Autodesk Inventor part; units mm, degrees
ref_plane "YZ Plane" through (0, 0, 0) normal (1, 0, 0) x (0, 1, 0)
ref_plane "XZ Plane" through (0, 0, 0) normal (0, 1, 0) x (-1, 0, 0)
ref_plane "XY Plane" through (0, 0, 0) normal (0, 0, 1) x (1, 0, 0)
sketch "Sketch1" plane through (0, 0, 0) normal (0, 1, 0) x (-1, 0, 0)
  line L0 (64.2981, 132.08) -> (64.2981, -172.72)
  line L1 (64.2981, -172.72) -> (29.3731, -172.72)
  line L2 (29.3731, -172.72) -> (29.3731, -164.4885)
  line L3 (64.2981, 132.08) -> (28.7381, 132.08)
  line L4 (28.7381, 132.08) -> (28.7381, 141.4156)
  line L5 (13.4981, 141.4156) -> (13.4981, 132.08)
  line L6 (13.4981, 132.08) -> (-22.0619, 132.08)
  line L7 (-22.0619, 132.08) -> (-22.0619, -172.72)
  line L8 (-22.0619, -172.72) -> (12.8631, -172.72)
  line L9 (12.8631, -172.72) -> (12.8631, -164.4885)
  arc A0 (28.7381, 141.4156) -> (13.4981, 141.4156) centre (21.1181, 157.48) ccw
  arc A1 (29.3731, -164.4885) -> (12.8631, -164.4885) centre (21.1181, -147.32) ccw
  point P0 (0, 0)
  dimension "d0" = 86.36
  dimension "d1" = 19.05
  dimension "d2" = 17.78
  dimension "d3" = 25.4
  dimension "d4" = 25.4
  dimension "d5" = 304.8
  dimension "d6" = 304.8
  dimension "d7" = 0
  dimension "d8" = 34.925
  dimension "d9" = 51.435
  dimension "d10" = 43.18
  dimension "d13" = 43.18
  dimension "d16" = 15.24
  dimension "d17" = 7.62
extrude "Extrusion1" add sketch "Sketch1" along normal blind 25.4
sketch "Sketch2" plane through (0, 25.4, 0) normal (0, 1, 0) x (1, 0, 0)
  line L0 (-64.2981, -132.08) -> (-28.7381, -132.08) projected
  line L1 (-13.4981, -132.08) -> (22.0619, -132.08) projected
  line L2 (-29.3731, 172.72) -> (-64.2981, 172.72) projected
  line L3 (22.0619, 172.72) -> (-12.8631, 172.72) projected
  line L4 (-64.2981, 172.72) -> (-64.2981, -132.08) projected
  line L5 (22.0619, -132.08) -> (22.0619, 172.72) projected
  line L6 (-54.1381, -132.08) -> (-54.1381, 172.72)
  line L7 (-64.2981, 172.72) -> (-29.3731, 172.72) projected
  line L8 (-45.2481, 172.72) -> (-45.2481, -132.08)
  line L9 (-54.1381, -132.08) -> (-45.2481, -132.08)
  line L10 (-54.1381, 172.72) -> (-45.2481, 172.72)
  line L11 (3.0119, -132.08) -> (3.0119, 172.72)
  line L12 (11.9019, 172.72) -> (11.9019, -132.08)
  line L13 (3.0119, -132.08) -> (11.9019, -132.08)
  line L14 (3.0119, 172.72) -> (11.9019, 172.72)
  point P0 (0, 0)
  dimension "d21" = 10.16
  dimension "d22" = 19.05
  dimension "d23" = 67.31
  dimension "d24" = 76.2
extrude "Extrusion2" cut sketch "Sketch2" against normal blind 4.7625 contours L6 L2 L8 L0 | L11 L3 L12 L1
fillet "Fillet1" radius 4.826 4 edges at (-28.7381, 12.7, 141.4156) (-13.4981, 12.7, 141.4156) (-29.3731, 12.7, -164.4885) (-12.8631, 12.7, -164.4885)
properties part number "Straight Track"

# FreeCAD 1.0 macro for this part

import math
import FreeCAD as App
import Part
import Sketcher
Q = App.Units.Quantity


def edges_at(feature, points):
    """Names of the edges that pass closest to the given points."""
    edges = feature.Shape.Edges
    near = lambda p: min(range(len(edges)), key=lambda i: edges[i].distToShape(Part.Vertex(*p))[0])
    return sorted({f"Edge{near(p) + 1}" for p in points})


def add_polygon(sketch, points):
    """Adds a closed chain of lines whose ends are joined by coincident constraints."""
    first, n = sketch.GeometryCount, len(points)
    for a, b in zip(points, points[1:] + points[:1]):
        sketch.addGeometry(Part.LineSegment(App.Vector(*a, 0), App.Vector(*b, 0)), False)
    for i in range(n):
        sketch.addConstraint(Sketcher.Constraint("Coincident", first + i, 2, first + (i + 1) % n, 1))

doc = App.newDocument("Part")
body = doc.addObject("PartDesign::Body", "Body")

# Sketch on XZ plane
sketch1 = doc.addObject("Sketcher::SketchObject", "Sketch")
body.addObject(sketch1)
sketch1.AttachmentSupport = (doc.XZ_Plane, [""])
sketch1.MapMode = "FlatFace"
sketch1.addGeometry(Part.LineSegment(App.Vector(-64.2981, -172.72, 0), App.Vector(-64.2981, 132.08, 0)), False)
sketch1.addGeometry(Part.LineSegment(App.Vector(-64.2981, 132.08, 0), App.Vector(-28.7381, 132.08, 0)), False)
sketch1.addGeometry(Part.LineSegment(App.Vector(-28.7381, 132.08, 0), App.Vector(-28.7381, 141.4156, 0)), False)
sketch1.addGeometry(Part.ArcOfCircle(Part.Circle(App.Vector(-21.1181, 157.48, 0), App.Vector(0, 0, 1), 17.780027), math.radians(-64.623107), math.radians(244.623107)), False)
sketch1.addGeometry(Part.LineSegment(App.Vector(-13.4981, 141.4156, 0), App.Vector(-13.4981, 132.08, 0)), False)
sketch1.addGeometry(Part.LineSegment(App.Vector(-13.4981, 132.08, 0), App.Vector(22.0619, 132.08, 0)), False)
sketch1.addGeometry(Part.LineSegment(App.Vector(22.0619, 132.08, 0), App.Vector(22.0619, -172.72, 0)), False)
sketch1.addGeometry(Part.LineSegment(App.Vector(22.0619, -172.72, 0), App.Vector(-12.8631, -172.72, 0)), False)
sketch1.addGeometry(Part.LineSegment(App.Vector(-12.8631, -172.72, 0), App.Vector(-12.8631, -164.4885, 0)), False)
sketch1.addGeometry(Part.ArcOfCircle(Part.Circle(App.Vector(-21.1181, -147.32, 0), App.Vector(0, 0, 1), 19.049998), math.radians(-64.320708), math.radians(244.320708)), False)
sketch1.addGeometry(Part.LineSegment(App.Vector(-29.3731, -164.4885, 0), App.Vector(-29.3731, -172.72, 0)), False)
sketch1.addGeometry(Part.LineSegment(App.Vector(-29.3731, -172.72, 0), App.Vector(-64.2981, -172.72, 0)), False)
sketch1.addConstraint(Sketcher.Constraint("Coincident", 0, 2, 1, 1))
sketch1.addConstraint(Sketcher.Constraint("Coincident", 1, 2, 2, 1))
sketch1.addConstraint(Sketcher.Constraint("Coincident", 2, 2, 3, 2))
sketch1.addConstraint(Sketcher.Constraint("Coincident", 3, 1, 4, 1))
sketch1.addConstraint(Sketcher.Constraint("Coincident", 4, 2, 5, 1))
sketch1.addConstraint(Sketcher.Constraint("Coincident", 5, 2, 6, 1))
sketch1.addConstraint(Sketcher.Constraint("Coincident", 6, 2, 7, 1))
sketch1.addConstraint(Sketcher.Constraint("Coincident", 7, 2, 8, 1))
sketch1.addConstraint(Sketcher.Constraint("Coincident", 8, 2, 9, 1))
sketch1.addConstraint(Sketcher.Constraint("Coincident", 9, 2, 10, 1))
sketch1.addConstraint(Sketcher.Constraint("Coincident", 10, 2, 11, 1))
sketch1.addConstraint(Sketcher.Constraint("Coincident", 11, 2, 0, 1))
sketch1.addConstraint(Sketcher.Constraint("Vertical", 0))
sketch1.addConstraint(Sketcher.Constraint("Horizontal", 1))
sketch1.addConstraint(Sketcher.Constraint("Vertical", 2))
sketch1.addConstraint(Sketcher.Constraint("Vertical", 4))
sketch1.addConstraint(Sketcher.Constraint("Horizontal", 5))
sketch1.addConstraint(Sketcher.Constraint("Vertical", 6))
sketch1.addConstraint(Sketcher.Constraint("Horizontal", 7))
sketch1.addConstraint(Sketcher.Constraint("Vertical", 8))
sketch1.addConstraint(Sketcher.Constraint("Vertical", 10))
sketch1.addConstraint(Sketcher.Constraint("Horizontal", 11))
sketch1.addConstraint(Sketcher.Constraint("Horizontal", 2, 2, 3, 1))
sketch1.addConstraint(Sketcher.Constraint("Horizontal", 1, 2, 4, 2))
sketch1.addConstraint(Sketcher.Constraint("Horizontal", 8, 2, 9, 2))
sketch1.addConstraint(Sketcher.Constraint("Horizontal", 7, 2, 10, 2))
sketch1.addConstraint(Sketcher.Constraint("Vertical", 3, 3, 9, 3))
sketch1.addConstraint(Sketcher.Constraint("Equal", 1, 5))
sketch1.addConstraint(Sketcher.Constraint("Radius", 3, Q("0.7 in")))
sketch1.addConstraint(Sketcher.Constraint("DistanceY", 0, 1, 0, 2, Q("12 in")))
sketch1.addConstraint(Sketcher.Constraint("Radius", 9, Q("0.75 in")))
sketch1.addConstraint(Sketcher.Constraint("DistanceY", 9, 3, 3, 3, Q("12 in")))
sketch1.addConstraint(Sketcher.Constraint("DistanceY", 0, 2, 3, 3, Q("1 in")))
sketch1.addConstraint(Sketcher.Constraint("DistanceX", 0, 2, 3, 3, Q("1.7 in")))
sketch1.addConstraint(Sketcher.Constraint("DistanceX", 1, 2, 3, 3, Q("0.3 in")))
sketch1.addConstraint(Sketcher.Constraint("DistanceX", 7, 2, 7, 1, Q("1.375 in")))
sketch1.addConstraint(Sketcher.Constraint("DistanceY", -1, 1, 3, 3, Q("6.2 in")))
sketch1.addConstraint(Sketcher.Constraint("DistanceX", 3, 3, -1, 1, Q("21.118 mm")))
pad1 = doc.addObject("PartDesign::Pad", "Pad")
body.addObject(pad1)
pad1.Profile = sketch1
pad1.Length = Q("1 in")
pad1.Reversed = True

# Sketch on XZ plane
sketch2 = doc.addObject("Sketcher::SketchObject", "Sketch001")
body.addObject(sketch2)
sketch2.AttachmentSupport = (doc.XZ_Plane, [""])
sketch2.MapMode = "FlatFace"
sketch2.AttachmentOffset = App.Placement(App.Vector(0, 0, -1 * 25.4), App.Rotation())
add_polygon(sketch2, [(-54.1381, -172.72), (-54.1381, 132.08), (-45.2481, 132.08), (-45.2481, -172.72)])  # lines 0-3
add_polygon(sketch2, [(3.0119, -172.72), (3.0119, 132.08), (11.9019, 132.08), (11.9019, -172.72)])  # lines 4-7
sketch2.addConstraint(Sketcher.Constraint("Vertical", 0))
sketch2.addConstraint(Sketcher.Constraint("Horizontal", 1))
sketch2.addConstraint(Sketcher.Constraint("Vertical", 2))
sketch2.addConstraint(Sketcher.Constraint("Horizontal", 3))
sketch2.addConstraint(Sketcher.Constraint("Vertical", 4))
sketch2.addConstraint(Sketcher.Constraint("Horizontal", 5))
sketch2.addConstraint(Sketcher.Constraint("Vertical", 6))
sketch2.addConstraint(Sketcher.Constraint("Horizontal", 7))
sketch2.addConstraint(Sketcher.Constraint("Horizontal", 1, 2, 4, 2))
sketch2.addConstraint(Sketcher.Constraint("Horizontal", 3, 2, 6, 2))
sketch2.addConstraint(Sketcher.Constraint("Equal", 3, 5))
sketch2.addConstraint(Sketcher.Constraint("DistanceY", 0, 1, 0, 2, Q("12 in")))
sketch2.addConstraint(Sketcher.Constraint("DistanceX", 1, 1, 1, 2, Q("0.35 in")))
sketch2.addConstraint(Sketcher.Constraint("DistanceY", -1, 1, 0, 2, Q("5.2 in")))
sketch2.addConstraint(Sketcher.Constraint("DistanceX", 1, 2, 4, 2, Q("1.9 in")))
sketch2.addConstraint(Sketcher.Constraint("DistanceX", 0, 2, -1, 1, Q("54.138 mm")))
pocket1 = doc.addObject("PartDesign::Pocket", "Pocket")
body.addObject(pocket1)
pocket1.Profile = sketch2
pocket1.Length = Q("0.1875 in")
pocket1.Reversed = True
doc.recompute()

fillet = doc.addObject("PartDesign::Fillet", "Fillet")
body.addObject(fillet)
fillet.Base = (pocket1, edges_at(pocket1, [
    (-28.738, 12.7, 141.416),
    (-13.498, 12.7, 141.416),
    (-29.373, 12.7, -164.488),
    (-12.863, 12.7, -164.488),
]))
fillet.Radius = Q("0.19 in")

doc.recompute()
